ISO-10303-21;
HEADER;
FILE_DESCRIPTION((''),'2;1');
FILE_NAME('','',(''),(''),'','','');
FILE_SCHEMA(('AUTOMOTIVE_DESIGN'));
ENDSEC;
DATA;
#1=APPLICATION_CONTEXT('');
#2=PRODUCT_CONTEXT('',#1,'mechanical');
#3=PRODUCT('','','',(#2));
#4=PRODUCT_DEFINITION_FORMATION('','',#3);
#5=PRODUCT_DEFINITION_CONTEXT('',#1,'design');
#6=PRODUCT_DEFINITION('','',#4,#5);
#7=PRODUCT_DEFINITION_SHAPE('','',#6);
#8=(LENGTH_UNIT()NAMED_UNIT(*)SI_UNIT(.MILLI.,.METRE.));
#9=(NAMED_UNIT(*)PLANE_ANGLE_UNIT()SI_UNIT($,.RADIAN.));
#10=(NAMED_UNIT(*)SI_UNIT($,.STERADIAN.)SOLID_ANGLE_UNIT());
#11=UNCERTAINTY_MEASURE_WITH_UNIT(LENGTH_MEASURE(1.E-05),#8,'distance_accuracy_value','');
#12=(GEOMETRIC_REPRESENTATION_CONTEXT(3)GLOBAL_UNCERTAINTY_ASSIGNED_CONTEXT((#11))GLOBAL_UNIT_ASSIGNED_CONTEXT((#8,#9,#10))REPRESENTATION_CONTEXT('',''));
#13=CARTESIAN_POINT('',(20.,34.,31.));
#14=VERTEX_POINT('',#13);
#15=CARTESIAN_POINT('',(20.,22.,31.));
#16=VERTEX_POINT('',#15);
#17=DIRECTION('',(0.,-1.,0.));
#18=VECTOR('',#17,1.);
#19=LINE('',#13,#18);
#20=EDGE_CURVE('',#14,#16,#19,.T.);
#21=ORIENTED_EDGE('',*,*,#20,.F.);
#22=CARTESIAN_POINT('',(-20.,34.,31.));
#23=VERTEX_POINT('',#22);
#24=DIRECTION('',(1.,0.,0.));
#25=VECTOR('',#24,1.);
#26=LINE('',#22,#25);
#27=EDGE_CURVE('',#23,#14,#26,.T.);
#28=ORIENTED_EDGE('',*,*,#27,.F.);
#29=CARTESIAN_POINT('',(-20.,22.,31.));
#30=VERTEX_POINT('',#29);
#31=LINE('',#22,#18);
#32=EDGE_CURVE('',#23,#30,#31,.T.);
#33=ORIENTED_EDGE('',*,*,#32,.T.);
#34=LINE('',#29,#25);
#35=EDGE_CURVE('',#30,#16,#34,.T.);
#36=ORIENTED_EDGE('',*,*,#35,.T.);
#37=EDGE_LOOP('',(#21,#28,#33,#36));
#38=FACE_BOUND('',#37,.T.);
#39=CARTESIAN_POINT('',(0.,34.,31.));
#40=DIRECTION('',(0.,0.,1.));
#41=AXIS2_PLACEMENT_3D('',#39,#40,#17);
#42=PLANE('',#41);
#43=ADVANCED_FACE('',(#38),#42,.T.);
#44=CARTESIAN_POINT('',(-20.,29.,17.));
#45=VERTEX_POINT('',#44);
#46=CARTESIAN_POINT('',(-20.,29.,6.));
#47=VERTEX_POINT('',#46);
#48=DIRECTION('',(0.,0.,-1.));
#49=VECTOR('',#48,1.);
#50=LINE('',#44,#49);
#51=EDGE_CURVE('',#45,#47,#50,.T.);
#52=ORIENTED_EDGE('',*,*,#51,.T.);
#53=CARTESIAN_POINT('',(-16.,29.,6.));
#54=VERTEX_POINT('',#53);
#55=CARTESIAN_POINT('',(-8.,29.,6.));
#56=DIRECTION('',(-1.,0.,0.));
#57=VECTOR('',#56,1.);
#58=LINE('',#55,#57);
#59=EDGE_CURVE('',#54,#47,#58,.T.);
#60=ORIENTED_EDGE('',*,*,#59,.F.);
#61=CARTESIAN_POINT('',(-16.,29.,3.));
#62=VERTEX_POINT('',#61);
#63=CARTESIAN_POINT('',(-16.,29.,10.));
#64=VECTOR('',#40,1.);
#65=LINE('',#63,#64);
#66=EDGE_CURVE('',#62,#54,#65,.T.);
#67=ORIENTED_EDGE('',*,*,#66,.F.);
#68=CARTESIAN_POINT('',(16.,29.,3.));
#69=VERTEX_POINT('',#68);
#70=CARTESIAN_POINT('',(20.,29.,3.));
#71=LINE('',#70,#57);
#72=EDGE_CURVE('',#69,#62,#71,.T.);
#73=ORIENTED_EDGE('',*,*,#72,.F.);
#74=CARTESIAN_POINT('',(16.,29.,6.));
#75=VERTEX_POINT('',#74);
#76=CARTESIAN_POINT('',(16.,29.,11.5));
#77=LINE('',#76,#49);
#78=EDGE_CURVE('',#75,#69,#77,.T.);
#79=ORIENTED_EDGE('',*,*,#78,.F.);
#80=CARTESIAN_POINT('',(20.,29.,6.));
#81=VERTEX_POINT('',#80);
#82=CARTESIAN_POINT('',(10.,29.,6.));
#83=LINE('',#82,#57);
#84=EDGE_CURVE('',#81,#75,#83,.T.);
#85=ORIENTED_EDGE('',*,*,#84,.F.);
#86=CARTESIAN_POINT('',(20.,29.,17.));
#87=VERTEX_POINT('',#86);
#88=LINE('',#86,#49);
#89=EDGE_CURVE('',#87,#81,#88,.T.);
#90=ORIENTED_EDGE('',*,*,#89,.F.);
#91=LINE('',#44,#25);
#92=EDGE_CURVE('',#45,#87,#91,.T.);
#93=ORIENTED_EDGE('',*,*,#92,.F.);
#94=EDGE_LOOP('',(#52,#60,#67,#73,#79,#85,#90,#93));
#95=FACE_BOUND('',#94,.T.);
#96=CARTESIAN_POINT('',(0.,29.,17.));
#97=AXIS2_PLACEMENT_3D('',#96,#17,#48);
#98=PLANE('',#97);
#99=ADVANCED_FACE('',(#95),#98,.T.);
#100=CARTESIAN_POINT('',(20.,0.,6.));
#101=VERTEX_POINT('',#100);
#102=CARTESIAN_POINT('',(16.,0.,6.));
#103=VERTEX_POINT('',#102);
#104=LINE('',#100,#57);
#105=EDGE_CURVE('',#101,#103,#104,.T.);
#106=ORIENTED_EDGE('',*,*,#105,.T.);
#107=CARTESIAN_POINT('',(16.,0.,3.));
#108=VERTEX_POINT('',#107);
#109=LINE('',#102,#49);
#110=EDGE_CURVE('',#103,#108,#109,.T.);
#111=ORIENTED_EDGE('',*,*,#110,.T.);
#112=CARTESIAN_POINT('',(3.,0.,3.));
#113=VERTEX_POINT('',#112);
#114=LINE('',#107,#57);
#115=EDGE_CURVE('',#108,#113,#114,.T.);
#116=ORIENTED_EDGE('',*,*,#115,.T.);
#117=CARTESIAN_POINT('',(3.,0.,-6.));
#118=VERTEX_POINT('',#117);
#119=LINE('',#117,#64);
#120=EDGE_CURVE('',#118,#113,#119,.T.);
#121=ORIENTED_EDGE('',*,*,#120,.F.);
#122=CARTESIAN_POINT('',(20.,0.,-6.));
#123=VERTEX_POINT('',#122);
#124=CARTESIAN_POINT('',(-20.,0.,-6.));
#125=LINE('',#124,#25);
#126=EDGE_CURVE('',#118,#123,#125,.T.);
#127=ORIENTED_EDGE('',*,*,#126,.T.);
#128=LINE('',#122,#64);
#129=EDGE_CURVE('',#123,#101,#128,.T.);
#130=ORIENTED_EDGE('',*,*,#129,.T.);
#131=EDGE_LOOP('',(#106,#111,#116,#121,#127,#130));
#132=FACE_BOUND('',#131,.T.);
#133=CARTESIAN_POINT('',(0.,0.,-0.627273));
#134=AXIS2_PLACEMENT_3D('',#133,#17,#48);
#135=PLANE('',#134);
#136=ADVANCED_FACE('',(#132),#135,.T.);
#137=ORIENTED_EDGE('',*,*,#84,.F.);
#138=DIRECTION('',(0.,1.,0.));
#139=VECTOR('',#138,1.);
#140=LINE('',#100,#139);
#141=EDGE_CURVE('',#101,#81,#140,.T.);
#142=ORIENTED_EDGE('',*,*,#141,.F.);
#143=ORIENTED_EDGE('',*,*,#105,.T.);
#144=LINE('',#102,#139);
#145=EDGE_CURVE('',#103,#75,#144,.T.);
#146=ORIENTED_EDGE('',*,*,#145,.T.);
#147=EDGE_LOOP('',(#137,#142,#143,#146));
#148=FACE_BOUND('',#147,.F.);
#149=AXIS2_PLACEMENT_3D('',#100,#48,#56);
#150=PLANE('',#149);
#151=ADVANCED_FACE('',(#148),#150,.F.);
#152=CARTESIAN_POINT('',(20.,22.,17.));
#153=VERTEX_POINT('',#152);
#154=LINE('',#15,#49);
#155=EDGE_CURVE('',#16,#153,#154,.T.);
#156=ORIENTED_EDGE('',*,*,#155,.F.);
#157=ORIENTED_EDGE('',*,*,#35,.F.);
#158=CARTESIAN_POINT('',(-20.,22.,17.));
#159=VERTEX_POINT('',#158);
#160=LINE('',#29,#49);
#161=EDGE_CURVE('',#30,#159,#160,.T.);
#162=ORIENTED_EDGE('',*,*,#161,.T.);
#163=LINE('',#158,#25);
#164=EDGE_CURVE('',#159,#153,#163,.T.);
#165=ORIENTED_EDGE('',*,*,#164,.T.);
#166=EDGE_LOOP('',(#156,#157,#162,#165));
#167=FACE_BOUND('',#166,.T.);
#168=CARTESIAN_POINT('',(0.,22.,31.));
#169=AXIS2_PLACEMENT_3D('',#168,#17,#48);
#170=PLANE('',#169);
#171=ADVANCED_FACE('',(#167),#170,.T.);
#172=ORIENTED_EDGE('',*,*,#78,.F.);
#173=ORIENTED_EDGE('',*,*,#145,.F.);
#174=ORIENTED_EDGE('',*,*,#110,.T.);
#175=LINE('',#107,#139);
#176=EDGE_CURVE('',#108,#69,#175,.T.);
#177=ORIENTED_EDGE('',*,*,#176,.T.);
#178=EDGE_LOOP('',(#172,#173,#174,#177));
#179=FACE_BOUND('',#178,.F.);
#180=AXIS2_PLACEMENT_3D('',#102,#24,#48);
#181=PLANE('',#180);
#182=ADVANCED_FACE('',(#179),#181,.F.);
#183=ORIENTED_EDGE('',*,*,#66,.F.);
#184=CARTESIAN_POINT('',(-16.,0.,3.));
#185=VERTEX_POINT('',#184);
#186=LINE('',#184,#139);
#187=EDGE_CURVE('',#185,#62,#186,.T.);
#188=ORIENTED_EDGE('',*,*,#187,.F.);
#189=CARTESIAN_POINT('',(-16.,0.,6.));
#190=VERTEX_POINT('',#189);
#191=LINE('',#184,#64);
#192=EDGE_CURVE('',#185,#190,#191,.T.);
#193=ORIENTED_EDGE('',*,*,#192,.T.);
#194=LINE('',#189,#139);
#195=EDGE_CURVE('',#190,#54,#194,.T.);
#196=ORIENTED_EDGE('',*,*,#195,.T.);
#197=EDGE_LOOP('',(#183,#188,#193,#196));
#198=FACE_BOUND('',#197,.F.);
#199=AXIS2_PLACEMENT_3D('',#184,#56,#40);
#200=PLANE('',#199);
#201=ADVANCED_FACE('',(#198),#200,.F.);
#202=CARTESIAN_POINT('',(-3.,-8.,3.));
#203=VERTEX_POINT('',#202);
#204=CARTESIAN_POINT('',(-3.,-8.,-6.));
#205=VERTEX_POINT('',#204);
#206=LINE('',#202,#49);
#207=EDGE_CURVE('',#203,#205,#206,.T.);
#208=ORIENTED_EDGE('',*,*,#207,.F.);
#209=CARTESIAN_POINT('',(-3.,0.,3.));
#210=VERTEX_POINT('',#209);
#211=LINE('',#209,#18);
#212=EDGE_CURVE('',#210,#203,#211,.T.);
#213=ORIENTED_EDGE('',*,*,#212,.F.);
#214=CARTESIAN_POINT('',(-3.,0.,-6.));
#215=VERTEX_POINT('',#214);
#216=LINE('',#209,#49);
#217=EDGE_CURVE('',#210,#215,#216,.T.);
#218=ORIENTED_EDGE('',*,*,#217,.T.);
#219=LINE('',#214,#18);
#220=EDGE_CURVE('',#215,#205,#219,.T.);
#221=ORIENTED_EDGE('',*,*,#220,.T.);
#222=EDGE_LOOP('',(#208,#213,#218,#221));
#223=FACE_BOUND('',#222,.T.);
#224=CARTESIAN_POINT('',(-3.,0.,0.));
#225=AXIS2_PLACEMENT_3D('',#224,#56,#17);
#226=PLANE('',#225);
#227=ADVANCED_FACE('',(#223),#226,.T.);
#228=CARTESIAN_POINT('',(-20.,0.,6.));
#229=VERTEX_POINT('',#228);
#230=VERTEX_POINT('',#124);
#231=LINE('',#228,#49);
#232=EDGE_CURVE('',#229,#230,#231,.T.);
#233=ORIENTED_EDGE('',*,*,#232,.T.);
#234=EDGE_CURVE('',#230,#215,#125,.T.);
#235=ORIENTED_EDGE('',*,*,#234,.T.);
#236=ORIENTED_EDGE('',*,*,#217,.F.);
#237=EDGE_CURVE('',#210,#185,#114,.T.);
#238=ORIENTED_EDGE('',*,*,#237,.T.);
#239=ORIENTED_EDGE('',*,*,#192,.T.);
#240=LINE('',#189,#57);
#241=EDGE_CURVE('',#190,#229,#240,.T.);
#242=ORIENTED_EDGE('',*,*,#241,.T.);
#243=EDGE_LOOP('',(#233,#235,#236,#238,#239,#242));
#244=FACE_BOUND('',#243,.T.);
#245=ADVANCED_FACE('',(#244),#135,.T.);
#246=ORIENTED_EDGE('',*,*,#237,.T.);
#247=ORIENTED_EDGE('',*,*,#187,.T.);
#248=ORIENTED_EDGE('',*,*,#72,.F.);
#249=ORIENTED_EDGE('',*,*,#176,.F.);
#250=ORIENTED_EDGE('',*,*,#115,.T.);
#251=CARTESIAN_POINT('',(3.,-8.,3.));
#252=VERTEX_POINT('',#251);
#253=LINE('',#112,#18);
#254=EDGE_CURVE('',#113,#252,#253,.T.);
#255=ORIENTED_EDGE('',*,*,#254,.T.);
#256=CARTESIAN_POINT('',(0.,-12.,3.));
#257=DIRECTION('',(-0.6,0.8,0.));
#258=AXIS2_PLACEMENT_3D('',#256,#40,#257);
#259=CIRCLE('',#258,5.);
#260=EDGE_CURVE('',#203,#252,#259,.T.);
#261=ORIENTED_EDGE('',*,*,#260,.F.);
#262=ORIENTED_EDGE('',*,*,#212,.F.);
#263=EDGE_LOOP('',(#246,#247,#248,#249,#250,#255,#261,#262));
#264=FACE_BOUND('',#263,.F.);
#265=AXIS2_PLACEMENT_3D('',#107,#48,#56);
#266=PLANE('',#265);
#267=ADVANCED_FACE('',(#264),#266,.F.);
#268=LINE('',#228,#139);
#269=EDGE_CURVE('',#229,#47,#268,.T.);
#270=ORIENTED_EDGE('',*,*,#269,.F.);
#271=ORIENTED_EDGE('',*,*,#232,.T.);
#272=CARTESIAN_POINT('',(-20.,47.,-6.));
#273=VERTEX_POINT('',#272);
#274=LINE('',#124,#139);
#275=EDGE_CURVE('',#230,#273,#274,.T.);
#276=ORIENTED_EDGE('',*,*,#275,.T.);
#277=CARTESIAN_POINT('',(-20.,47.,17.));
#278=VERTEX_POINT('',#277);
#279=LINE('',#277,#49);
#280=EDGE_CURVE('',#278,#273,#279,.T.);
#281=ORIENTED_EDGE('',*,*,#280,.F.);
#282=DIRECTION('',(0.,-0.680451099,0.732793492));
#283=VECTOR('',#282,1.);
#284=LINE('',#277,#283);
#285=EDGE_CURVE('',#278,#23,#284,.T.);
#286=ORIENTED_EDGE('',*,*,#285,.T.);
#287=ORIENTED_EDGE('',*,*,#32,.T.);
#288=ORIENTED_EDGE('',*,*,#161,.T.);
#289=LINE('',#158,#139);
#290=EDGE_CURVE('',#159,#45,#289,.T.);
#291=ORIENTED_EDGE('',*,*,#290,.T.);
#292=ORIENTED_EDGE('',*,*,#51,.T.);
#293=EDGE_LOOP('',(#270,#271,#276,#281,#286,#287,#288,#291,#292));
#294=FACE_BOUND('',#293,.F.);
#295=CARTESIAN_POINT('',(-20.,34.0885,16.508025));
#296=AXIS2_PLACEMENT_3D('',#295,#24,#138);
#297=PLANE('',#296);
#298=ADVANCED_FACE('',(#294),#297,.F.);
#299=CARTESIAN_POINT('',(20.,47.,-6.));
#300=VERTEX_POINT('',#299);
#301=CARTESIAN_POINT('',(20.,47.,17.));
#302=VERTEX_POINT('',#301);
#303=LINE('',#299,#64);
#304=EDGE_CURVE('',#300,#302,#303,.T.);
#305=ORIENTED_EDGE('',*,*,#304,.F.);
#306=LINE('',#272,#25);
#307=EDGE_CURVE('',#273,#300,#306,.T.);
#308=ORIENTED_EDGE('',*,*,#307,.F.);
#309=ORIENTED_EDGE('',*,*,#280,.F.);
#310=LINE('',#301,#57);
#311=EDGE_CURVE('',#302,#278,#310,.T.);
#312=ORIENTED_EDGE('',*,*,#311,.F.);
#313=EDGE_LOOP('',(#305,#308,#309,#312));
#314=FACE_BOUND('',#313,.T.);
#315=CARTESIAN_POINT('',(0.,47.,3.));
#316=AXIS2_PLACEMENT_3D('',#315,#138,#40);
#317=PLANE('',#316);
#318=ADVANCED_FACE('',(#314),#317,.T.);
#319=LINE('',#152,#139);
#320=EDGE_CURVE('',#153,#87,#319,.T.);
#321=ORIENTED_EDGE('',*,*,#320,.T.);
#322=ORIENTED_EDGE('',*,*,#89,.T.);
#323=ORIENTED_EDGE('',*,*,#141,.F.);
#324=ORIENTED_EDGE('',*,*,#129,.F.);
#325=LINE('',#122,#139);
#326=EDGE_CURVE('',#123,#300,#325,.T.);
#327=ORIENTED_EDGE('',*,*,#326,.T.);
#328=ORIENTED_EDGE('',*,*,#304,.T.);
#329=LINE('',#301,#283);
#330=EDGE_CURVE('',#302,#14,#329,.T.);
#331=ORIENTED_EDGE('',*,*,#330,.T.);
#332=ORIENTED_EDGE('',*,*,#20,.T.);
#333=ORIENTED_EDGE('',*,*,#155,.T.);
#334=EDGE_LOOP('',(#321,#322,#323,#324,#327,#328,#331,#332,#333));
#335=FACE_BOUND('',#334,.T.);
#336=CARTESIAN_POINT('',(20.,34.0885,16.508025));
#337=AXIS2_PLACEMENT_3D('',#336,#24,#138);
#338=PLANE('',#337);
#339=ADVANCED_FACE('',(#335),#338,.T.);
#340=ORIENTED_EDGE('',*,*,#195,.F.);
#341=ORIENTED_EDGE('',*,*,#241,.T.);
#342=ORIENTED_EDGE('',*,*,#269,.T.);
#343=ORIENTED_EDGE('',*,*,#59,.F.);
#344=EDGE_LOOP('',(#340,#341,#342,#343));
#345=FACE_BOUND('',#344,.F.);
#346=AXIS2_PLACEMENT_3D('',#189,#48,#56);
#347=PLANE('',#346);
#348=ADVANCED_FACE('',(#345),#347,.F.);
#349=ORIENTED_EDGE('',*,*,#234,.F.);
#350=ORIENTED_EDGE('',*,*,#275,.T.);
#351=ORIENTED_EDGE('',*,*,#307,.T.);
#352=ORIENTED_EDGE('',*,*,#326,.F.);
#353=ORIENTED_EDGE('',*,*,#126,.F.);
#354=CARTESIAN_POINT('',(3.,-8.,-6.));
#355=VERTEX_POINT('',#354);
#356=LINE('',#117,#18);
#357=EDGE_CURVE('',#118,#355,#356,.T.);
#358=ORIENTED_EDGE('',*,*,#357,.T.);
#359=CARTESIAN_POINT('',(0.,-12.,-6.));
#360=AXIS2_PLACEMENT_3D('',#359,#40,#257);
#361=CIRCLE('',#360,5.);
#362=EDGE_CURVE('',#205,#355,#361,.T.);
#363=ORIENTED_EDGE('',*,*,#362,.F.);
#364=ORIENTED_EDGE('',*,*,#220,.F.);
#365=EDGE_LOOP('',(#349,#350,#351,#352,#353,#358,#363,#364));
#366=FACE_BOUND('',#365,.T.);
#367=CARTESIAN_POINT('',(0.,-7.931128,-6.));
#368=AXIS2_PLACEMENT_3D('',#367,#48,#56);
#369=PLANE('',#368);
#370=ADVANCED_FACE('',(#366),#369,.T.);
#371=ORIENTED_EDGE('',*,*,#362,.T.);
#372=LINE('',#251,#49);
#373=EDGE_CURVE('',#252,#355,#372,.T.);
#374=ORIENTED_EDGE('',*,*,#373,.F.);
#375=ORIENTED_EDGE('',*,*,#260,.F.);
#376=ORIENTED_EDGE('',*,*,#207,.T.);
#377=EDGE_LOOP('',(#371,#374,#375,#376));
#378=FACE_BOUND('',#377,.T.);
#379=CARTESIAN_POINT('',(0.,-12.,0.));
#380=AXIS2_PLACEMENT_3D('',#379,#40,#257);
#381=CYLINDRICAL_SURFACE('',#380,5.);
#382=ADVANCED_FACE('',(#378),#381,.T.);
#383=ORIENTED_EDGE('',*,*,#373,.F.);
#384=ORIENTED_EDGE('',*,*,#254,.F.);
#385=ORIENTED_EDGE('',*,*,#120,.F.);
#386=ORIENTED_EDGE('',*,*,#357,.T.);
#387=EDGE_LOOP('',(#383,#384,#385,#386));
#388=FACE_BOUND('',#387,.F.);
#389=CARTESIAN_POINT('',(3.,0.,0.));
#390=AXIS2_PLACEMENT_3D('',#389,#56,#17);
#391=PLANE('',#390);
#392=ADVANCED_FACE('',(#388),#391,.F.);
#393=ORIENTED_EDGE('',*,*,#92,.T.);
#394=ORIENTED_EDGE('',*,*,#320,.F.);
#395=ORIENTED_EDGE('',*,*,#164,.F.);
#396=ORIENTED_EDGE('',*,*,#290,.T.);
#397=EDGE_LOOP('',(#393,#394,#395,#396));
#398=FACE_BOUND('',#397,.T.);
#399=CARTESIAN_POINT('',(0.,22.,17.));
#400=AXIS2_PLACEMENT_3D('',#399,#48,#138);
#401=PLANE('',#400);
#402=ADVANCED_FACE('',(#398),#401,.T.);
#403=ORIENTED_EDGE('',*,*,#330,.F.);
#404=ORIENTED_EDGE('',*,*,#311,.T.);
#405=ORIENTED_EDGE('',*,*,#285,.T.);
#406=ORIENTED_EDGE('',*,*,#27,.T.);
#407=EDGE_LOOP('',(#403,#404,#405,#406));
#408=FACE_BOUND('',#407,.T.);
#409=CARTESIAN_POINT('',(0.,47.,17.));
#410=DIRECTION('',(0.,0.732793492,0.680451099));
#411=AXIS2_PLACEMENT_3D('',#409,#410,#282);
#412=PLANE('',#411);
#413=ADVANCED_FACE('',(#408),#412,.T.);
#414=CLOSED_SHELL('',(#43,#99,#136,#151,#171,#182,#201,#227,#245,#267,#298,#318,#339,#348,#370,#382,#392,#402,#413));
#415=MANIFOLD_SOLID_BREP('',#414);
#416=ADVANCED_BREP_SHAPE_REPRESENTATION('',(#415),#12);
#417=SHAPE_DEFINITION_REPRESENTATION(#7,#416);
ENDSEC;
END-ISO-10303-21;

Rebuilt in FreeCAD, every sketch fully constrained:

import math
import FreeCAD as App
import Part
import Sketcher

doc = App.newDocument("Part")
body = doc.addObject("PartDesign::Body", "Body")

sketch1 = doc.addObject("Sketcher::SketchObject", "Sketch")
body.addObject(sketch1)
sketch1.AttachmentSupport = (doc.XZ_Plane, [""])
sketch1.MapMode = "FlatFace"
sketch1.addGeometry([
    Part.LineSegment(App.Vector(-20, 6, 0), App.Vector(-20, -6, 0)),
    Part.LineSegment(App.Vector(-20, -6, 0), App.Vector(20, -6, 0)),
    Part.LineSegment(App.Vector(20, -6, 0), App.Vector(20, 6, 0)),
    Part.LineSegment(App.Vector(20, 6, 0), App.Vector(16, 6, 0)),
    Part.LineSegment(App.Vector(16, 6, 0), App.Vector(16, 3, 0)),
    Part.LineSegment(App.Vector(16, 3, 0), App.Vector(-16, 3, 0)),
    Part.LineSegment(App.Vector(-16, 3, 0), App.Vector(-16, 6, 0)),
    Part.LineSegment(App.Vector(-16, 6, 0), App.Vector(-20, 6, 0)),
], False)
sketch1.addConstraint([
    Sketcher.Constraint("Coincident", 0, 2, 1, 1),
    Sketcher.Constraint("Coincident", 1, 2, 2, 1),
    Sketcher.Constraint("Coincident", 2, 2, 3, 1),
    Sketcher.Constraint("Coincident", 3, 2, 4, 1),
    Sketcher.Constraint("Coincident", 4, 2, 5, 1),
    Sketcher.Constraint("Coincident", 5, 2, 6, 1),
    Sketcher.Constraint("Coincident", 6, 2, 7, 1),
    Sketcher.Constraint("Coincident", 7, 2, 0, 1),
    Sketcher.Constraint("Vertical", 0),
    Sketcher.Constraint("Horizontal", 1),
    Sketcher.Constraint("Vertical", 2),
    Sketcher.Constraint("Horizontal", 3),
    Sketcher.Constraint("Vertical", 4),
    Sketcher.Constraint("Horizontal", 5),
    Sketcher.Constraint("Vertical", 6),
    Sketcher.Constraint("Horizontal", 7),
    Sketcher.Constraint("Symmetric", 0, 2, 2, 2, -1, 1),
    Sketcher.Constraint("Symmetric", 3, 2, 6, 2, -2),
    Sketcher.Constraint("DistanceX", 1, 1, 1, 2, 40.0),
    Sketcher.Constraint("DistanceX", 3, 2, 3, 1, 4.0),
    Sketcher.Constraint("DistanceY", 0, 2, 0, 1, 12.0),
    Sketcher.Constraint("DistanceY", 4, 2, 4, 1, 3.0),
])

sketch2 = doc.addObject("Sketcher::SketchObject", "Sketch001")
body.addObject(sketch2)
sketch2.AttachmentSupport = (doc.XY_Plane, [""])
sketch2.MapMode = "FlatFace"
sketch2.addGeometry(Part.LineSegment(App.Vector(0, 0, 0), App.Vector(0, 47, 0)), False)
sketch2.addConstraint([
    Sketcher.Constraint("Vertical", 0),
    Sketcher.Constraint("Coincident", 0, 1, -1, 1),
    Sketcher.Constraint("DistanceY", 0, 1, 0, 2, 47.0),
])
doc.recompute()

additivepipe = doc.addObject("PartDesign::AdditivePipe", "AdditivePipe")
body.addObject(additivepipe)
additivepipe.Profile = sketch1
additivepipe.Spine = (sketch2, ["Edge1"])

sketch3 = doc.addObject("Sketcher::SketchObject", "Sketch002")
body.addObject(sketch3)
sketch3.AttachmentSupport = (doc.YZ_Plane, [""])
sketch3.MapMode = "FlatFace"
sketch3.addGeometry([
    Part.LineSegment(App.Vector(47, 17, 0), App.Vector(34, 31, 0)),
    Part.LineSegment(App.Vector(34, 31, 0), App.Vector(22, 31, 0)),
    Part.LineSegment(App.Vector(22, 31, 0), App.Vector(22, 17, 0)),
    Part.LineSegment(App.Vector(22, 17, 0), App.Vector(29, 17, 0)),
    Part.LineSegment(App.Vector(29, 17, 0), App.Vector(29, 3, 0)),
    Part.LineSegment(App.Vector(29, 3, 0), App.Vector(47, 3, 0)),
    Part.LineSegment(App.Vector(47, 3, 0), App.Vector(47, 17, 0)),
], False)
sketch3.addConstraint([
    Sketcher.Constraint("Coincident", 0, 2, 1, 1),
    Sketcher.Constraint("Coincident", 1, 2, 2, 1),
    Sketcher.Constraint("Coincident", 2, 2, 3, 1),
    Sketcher.Constraint("Coincident", 3, 2, 4, 1),
    Sketcher.Constraint("Coincident", 4, 2, 5, 1),
    Sketcher.Constraint("Coincident", 5, 2, 6, 1),
    Sketcher.Constraint("Coincident", 6, 2, 0, 1),
    Sketcher.Constraint("Horizontal", 1),
    Sketcher.Constraint("Vertical", 2),
    Sketcher.Constraint("Horizontal", 3),
    Sketcher.Constraint("Vertical", 4),
    Sketcher.Constraint("Horizontal", 5),
    Sketcher.Constraint("Vertical", 6),
    Sketcher.Constraint("Horizontal", 3, 2, 6, 2),
    Sketcher.Constraint("Equal", 2, 4),
    Sketcher.Constraint("DistanceX", 1, 2, 1, 1, 12.0),
    Sketcher.Constraint("DistanceX", 3, 1, 3, 2, 7.0),
    Sketcher.Constraint("DistanceX", 5, 1, 5, 2, 18.0),
    Sketcher.Constraint("DistanceY", 2, 2, 2, 1, 14.0),
    Sketcher.Constraint("DistanceX", -1, 1, 0, 2, 34.0),
    Sketcher.Constraint("DistanceY", -1, 1, 0, 2, 31.0),
])
pad1 = doc.addObject("PartDesign::Pad", "Pad")
body.addObject(pad1)
pad1.Profile = sketch3
pad1.Length = 40
pad1.Midplane = True

sketch4 = doc.addObject("Sketcher::SketchObject", "Sketch003")
body.addObject(sketch4)
sketch4.AttachmentSupport = (doc.XY_Plane, [""])
sketch4.MapMode = "FlatFace"
sketch4.addGeometry([
    Part.LineSegment(App.Vector(3, 0, 0), App.Vector(-3, 0, 0)),
    Part.LineSegment(App.Vector(-3, 0, 0), App.Vector(-3, -8, 0)),
    Part.ArcOfCircle(Part.Circle(App.Vector(0, -12, 0), App.Vector(0, 0, 1), 5), math.radians(127), math.radians(413)),
    Part.LineSegment(App.Vector(3, -8, 0), App.Vector(3, 0, 0)),
], False)
sketch4.addConstraint([
    Sketcher.Constraint("Coincident", 0, 2, 1, 1),
    Sketcher.Constraint("Coincident", 1, 2, 2, 1),
    Sketcher.Constraint("Coincident", 2, 2, 3, 1),
    Sketcher.Constraint("Coincident", 3, 2, 0, 1),
    Sketcher.Constraint("Horizontal", 0),
    Sketcher.Constraint("Vertical", 1),
    Sketcher.Constraint("Vertical", 3),
    Sketcher.Constraint("Symmetric", 0, 2, 3, 2, -1, 1),
    Sketcher.Constraint("PointOnObject", 2, 3, -2),
    Sketcher.Constraint("Radius", 2, 5.0),
    Sketcher.Constraint("DistanceX", 0, 2, 0, 1, 6.0),
    Sketcher.Constraint("DistanceY", 1, 2, 1, 1, 8.0),
])
pad2 = doc.addObject("PartDesign::Pad", "Pad001")
body.addObject(pad2)
pad2.Profile = sketch4
pad2.Type = "TwoLengths"
pad2.Length = 3
pad2.Length2 = 6

doc.recompute()
